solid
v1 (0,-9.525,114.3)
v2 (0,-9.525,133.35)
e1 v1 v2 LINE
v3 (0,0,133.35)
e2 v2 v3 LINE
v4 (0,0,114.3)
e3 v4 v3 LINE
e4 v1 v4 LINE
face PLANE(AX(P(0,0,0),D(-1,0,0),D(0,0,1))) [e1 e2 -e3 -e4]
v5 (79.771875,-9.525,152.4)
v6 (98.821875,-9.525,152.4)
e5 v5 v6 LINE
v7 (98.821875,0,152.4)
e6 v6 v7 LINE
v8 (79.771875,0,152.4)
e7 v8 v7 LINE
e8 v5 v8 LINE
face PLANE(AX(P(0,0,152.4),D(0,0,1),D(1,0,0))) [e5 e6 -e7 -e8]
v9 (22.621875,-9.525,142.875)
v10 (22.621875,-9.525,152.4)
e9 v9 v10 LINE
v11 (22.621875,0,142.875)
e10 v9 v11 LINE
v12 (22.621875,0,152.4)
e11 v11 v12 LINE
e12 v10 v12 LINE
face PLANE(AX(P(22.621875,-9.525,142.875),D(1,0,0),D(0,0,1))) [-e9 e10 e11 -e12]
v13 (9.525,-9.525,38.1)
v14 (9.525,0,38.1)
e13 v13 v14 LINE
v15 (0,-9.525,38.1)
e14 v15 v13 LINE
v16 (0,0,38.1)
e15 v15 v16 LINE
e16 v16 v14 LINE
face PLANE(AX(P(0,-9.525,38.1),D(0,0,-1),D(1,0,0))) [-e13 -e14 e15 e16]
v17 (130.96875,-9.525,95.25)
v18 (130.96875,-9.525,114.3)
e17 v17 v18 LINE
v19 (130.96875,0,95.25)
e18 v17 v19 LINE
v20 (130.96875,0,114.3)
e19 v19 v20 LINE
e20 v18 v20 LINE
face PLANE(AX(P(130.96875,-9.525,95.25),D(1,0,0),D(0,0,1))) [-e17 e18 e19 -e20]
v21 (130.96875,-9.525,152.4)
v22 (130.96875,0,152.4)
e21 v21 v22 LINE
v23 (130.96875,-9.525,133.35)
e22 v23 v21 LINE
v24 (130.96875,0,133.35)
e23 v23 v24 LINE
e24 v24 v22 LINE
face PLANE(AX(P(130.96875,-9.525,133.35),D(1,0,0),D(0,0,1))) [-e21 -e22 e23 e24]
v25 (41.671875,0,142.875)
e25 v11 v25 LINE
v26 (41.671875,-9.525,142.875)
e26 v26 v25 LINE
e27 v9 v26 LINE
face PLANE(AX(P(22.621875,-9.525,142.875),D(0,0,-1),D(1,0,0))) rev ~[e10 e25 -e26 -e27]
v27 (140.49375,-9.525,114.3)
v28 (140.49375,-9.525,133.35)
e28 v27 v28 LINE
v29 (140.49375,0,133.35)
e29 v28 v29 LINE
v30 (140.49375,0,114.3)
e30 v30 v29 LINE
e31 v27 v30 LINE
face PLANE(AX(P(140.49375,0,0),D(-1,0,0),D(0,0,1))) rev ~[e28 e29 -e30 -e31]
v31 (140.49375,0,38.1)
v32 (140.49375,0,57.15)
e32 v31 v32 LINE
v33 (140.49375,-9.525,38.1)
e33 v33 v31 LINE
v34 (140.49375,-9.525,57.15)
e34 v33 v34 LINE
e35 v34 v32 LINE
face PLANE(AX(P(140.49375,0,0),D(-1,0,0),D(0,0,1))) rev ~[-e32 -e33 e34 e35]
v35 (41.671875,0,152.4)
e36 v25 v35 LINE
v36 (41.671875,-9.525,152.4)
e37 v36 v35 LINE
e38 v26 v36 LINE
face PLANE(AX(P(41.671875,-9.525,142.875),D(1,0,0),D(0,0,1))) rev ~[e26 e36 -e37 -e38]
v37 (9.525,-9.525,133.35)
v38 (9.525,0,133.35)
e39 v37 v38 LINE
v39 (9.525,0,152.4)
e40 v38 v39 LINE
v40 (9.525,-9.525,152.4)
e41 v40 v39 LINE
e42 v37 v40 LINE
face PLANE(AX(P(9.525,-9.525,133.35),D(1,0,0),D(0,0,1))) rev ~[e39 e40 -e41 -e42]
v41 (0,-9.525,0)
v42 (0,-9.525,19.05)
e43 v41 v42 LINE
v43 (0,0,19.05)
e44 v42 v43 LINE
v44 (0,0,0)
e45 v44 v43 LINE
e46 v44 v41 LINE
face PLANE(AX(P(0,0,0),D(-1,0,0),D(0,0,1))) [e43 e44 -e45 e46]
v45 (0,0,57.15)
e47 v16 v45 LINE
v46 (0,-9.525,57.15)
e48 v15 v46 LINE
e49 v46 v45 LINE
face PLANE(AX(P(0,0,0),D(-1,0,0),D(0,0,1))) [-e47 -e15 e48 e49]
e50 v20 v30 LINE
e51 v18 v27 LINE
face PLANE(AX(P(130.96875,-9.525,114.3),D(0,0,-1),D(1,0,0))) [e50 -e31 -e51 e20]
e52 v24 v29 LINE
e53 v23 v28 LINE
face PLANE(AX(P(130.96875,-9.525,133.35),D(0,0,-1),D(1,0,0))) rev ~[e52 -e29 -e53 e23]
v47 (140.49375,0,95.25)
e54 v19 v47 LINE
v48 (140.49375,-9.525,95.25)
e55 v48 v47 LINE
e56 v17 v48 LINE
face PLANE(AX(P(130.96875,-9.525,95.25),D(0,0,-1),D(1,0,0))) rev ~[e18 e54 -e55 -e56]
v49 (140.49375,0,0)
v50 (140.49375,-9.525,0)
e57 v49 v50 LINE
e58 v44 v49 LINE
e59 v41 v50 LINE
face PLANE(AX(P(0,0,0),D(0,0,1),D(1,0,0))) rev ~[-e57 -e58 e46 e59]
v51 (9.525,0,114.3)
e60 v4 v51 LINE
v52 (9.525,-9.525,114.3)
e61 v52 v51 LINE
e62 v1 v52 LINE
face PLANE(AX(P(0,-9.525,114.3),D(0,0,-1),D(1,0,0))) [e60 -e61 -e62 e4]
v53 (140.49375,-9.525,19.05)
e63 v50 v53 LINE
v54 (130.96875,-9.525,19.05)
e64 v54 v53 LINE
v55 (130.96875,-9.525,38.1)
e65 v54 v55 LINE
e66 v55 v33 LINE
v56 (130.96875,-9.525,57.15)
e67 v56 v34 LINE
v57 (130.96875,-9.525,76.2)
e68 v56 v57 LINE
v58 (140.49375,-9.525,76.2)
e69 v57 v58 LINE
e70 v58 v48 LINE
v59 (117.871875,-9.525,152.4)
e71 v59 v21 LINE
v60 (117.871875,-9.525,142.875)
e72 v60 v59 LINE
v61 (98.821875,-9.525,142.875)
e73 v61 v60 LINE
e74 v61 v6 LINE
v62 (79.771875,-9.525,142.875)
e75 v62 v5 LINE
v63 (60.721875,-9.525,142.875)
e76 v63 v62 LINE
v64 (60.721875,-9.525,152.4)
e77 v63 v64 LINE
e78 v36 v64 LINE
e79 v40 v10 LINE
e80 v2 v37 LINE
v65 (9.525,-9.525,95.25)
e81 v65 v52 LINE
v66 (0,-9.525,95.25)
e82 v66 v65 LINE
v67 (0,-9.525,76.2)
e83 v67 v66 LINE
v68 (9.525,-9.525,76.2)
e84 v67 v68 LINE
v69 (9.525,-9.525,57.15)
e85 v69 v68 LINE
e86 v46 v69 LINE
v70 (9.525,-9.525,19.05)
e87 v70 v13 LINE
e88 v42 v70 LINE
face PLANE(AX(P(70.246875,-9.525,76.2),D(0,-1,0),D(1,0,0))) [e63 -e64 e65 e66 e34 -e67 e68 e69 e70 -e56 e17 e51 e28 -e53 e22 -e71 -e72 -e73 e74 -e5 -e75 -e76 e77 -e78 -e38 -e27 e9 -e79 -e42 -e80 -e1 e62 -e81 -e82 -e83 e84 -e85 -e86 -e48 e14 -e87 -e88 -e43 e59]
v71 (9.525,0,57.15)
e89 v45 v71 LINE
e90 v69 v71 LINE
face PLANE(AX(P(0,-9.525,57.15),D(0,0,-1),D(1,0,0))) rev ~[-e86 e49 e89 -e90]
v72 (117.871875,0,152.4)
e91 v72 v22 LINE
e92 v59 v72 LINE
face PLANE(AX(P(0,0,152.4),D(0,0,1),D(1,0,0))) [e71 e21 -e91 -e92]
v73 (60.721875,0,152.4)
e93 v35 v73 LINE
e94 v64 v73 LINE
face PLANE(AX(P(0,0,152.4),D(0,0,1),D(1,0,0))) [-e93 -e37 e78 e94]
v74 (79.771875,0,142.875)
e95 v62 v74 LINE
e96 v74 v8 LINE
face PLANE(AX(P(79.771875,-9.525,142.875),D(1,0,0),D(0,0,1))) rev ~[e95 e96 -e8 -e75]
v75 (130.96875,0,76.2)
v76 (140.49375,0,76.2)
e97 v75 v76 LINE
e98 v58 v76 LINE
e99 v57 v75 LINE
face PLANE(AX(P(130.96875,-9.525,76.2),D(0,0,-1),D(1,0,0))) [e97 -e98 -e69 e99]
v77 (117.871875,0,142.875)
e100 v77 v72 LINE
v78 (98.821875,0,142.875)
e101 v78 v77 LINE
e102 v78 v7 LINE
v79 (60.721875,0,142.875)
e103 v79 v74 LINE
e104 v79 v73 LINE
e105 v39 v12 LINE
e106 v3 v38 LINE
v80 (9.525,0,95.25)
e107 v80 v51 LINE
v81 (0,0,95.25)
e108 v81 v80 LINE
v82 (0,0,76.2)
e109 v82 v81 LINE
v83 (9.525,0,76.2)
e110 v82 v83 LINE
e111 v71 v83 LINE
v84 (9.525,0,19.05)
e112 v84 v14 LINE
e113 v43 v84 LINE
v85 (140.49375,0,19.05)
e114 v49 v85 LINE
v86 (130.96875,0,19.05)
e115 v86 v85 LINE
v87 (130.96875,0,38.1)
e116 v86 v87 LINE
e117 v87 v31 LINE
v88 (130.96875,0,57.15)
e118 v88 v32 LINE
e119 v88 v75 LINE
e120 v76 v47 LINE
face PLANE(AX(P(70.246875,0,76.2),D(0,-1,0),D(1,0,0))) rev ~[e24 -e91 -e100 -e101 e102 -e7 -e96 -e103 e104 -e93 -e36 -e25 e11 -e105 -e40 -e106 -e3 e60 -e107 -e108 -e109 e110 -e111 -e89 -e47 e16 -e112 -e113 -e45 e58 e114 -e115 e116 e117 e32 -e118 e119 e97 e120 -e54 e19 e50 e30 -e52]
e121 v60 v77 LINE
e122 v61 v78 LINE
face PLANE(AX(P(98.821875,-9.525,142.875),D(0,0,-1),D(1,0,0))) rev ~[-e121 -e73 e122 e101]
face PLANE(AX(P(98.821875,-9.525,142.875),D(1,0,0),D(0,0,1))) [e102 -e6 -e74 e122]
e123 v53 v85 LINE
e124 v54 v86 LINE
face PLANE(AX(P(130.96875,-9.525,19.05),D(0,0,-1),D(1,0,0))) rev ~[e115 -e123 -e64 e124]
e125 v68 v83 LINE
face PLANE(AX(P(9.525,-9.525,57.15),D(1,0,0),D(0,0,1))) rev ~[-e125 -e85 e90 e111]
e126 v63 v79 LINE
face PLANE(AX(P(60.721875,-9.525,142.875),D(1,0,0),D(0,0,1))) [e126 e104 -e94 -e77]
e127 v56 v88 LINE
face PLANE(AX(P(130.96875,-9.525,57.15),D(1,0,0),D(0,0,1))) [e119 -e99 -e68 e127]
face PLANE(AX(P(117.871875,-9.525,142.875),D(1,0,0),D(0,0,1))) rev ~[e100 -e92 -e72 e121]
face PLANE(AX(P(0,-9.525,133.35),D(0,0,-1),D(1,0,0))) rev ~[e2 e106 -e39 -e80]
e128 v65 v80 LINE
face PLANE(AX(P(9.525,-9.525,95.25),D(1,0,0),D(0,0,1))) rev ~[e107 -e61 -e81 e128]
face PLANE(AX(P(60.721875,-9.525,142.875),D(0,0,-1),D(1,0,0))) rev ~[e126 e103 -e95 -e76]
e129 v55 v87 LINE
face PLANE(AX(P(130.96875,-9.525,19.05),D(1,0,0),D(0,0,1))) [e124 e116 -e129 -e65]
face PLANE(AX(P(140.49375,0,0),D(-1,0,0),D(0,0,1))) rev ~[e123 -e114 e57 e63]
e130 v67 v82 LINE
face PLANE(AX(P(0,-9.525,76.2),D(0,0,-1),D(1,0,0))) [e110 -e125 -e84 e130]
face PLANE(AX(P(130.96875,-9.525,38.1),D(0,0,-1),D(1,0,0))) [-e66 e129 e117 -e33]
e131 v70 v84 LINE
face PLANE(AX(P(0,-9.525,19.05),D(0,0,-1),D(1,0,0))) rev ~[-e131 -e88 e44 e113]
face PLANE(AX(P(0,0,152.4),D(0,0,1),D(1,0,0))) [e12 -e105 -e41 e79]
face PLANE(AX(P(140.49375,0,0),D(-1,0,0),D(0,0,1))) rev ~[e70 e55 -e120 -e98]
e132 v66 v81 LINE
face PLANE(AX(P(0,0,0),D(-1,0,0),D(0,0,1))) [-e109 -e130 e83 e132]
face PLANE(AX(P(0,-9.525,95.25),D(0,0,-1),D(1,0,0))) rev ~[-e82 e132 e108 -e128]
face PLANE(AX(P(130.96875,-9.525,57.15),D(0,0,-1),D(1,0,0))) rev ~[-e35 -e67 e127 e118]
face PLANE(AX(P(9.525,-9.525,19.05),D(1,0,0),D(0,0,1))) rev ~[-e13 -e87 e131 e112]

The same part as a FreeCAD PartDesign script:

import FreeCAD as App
import Part
import Sketcher
Q = App.Units.Quantity

doc = App.newDocument("Part")
body = doc.addObject("PartDesign::Body", "Body")

# Sketch on XZ plane
sketch1 = body.newObject("Sketcher::SketchObject", "Sketch")
sketch1.AttachmentSupport = (doc.getObject("XZ_Plane"), [""])
sketch1.MapMode = "FlatFace"
sketch1.addGeometry(Part.LineSegment(App.Vector(0, 152, 0), App.Vector(0, 0, 0)), False)
sketch1.addGeometry(Part.LineSegment(App.Vector(0, 0, 0), App.Vector(140, 0, 0)), False)
sketch1.addGeometry(Part.LineSegment(App.Vector(140, 0, 0), App.Vector(140, 152, 0)), False)
sketch1.addGeometry(Part.LineSegment(App.Vector(140, 152, 0), App.Vector(0, 152, 0)), False)
sketch1.addConstraint(Sketcher.Constraint("Coincident", 0, 2, 1, 1))
sketch1.addConstraint(Sketcher.Constraint("Coincident", 1, 2, 2, 1))
sketch1.addConstraint(Sketcher.Constraint("Coincident", 2, 2, 3, 1))
sketch1.addConstraint(Sketcher.Constraint("Coincident", 3, 2, 0, 1))
sketch1.addConstraint(Sketcher.Constraint("Vertical", 0))
sketch1.addConstraint(Sketcher.Constraint("Horizontal", 1))
sketch1.addConstraint(Sketcher.Constraint("Vertical", 2))
sketch1.addConstraint(Sketcher.Constraint("Horizontal", 3))
sketch1.addConstraint(Sketcher.Constraint("Coincident", 0, 2, -1, 1))
sketch1.addConstraint(Sketcher.Constraint("DistanceY", 0, 2, 0, 1, Q("6 in")))
sketch1.addConstraint(Sketcher.Constraint("DistanceX", 1, 1, 1, 2, Q("5.53125 in")))
pad1 = body.newObject("PartDesign::Pad", "Pad")
pad1.Profile = sketch1
pad1.Length = Q("0.375 in")

# Sketch on XZ plane
sketch2 = body.newObject("Sketcher::SketchObject", "Sketch001")
sketch2.AttachmentSupport = (doc.getObject("XZ_Plane"), [""])
sketch2.MapMode = "FlatFace"
sketch2.AttachmentOffset = App.Placement(App.Vector(0, 0, 0.375 * 25.4), App.Rotation())
sketch2.addGeometry(Part.LineSegment(App.Vector(0, 152, 0), App.Vector(0, 133, 0)), False)
sketch2.addGeometry(Part.LineSegment(App.Vector(0, 133, 0), App.Vector(10, 133, 0)), False)
sketch2.addGeometry(Part.LineSegment(App.Vector(10, 133, 0), App.Vector(10, 152, 0)), False)
sketch2.addGeometry(Part.LineSegment(App.Vector(10, 152, 0), App.Vector(0, 152, 0)), False)
sketch2.addGeometry(Part.LineSegment(App.Vector(0, 114, 0), App.Vector(0, 95, 0)), False)
sketch2.addGeometry(Part.LineSegment(App.Vector(0, 95, 0), App.Vector(10, 95, 0)), False)
sketch2.addGeometry(Part.LineSegment(App.Vector(10, 95, 0), App.Vector(10, 114, 0)), False)
sketch2.addGeometry(Part.LineSegment(App.Vector(10, 114, 0), App.Vector(0, 114, 0)), False)
sketch2.addGeometry(Part.LineSegment(App.Vector(0, 76, 0), App.Vector(0, 57, 0)), False)
sketch2.addGeometry(Part.LineSegment(App.Vector(0, 57, 0), App.Vector(10, 57, 0)), False)
sketch2.addGeometry(Part.LineSegment(App.Vector(10, 57, 0), App.Vector(10, 76, 0)), False)
sketch2.addGeometry(Part.LineSegment(App.Vector(10, 76, 0), App.Vector(0, 76, 0)), False)
sketch2.addGeometry(Part.LineSegment(App.Vector(0, 38, 0), App.Vector(0, 19, 0)), False)
sketch2.addGeometry(Part.LineSegment(App.Vector(0, 19, 0), App.Vector(10, 19, 0)), False)
sketch2.addGeometry(Part.LineSegment(App.Vector(10, 19, 0), App.Vector(10, 38, 0)), False)
sketch2.addGeometry(Part.LineSegment(App.Vector(10, 38, 0), App.Vector(0, 38, 0)), False)
sketch2.addGeometry(Part.LineSegment(App.Vector(23, 152, 0), App.Vector(23, 143, 0)), False)
sketch2.addGeometry(Part.LineSegment(App.Vector(23, 143, 0), App.Vector(42, 143, 0)), False)
sketch2.addGeometry(Part.LineSegment(App.Vector(42, 143, 0), App.Vector(42, 152, 0)), False)
sketch2.addGeometry(Part.LineSegment(App.Vector(42, 152, 0), App.Vector(23, 152, 0)), False)
sketch2.addGeometry(Part.LineSegment(App.Vector(61, 152, 0), App.Vector(61, 143, 0)), False)
sketch2.addGeometry(Part.LineSegment(App.Vector(61, 143, 0), App.Vector(80, 143, 0)), False)
sketch2.addGeometry(Part.LineSegment(App.Vector(80, 143, 0), App.Vector(80, 152, 0)), False)
sketch2.addGeometry(Part.LineSegment(App.Vector(80, 152, 0), App.Vector(61, 152, 0)), False)
sketch2.addGeometry(Part.LineSegment(App.Vector(99, 152, 0), App.Vector(99, 143, 0)), False)
sketch2.addGeometry(Part.LineSegment(App.Vector(99, 143, 0), App.Vector(118, 143, 0)), False)
sketch2.addGeometry(Part.LineSegment(App.Vector(118, 143, 0), App.Vector(118, 152, 0)), False)
sketch2.addGeometry(Part.LineSegment(App.Vector(118, 152, 0), App.Vector(99, 152, 0)), False)
sketch2.addGeometry(Part.LineSegment(App.Vector(131, 152, 0), App.Vector(131, 133, 0)), False)
sketch2.addGeometry(Part.LineSegment(App.Vector(131, 133, 0), App.Vector(140, 133, 0)), False)
sketch2.addGeometry(Part.LineSegment(App.Vector(140, 133, 0), App.Vector(140, 152, 0)), False)
sketch2.addGeometry(Part.LineSegment(App.Vector(140, 152, 0), App.Vector(131, 152, 0)), False)
sketch2.addGeometry(Part.LineSegment(App.Vector(131, 114, 0), App.Vector(131, 95, 0)), False)
sketch2.addGeometry(Part.LineSegment(App.Vector(131, 95, 0), App.Vector(140, 95, 0)), False)
sketch2.addGeometry(Part.LineSegment(App.Vector(140, 95, 0), App.Vector(140, 114, 0)), False)
sketch2.addGeometry(Part.LineSegment(App.Vector(140, 114, 0), App.Vector(131, 114, 0)), False)
sketch2.addGeometry(Part.LineSegment(App.Vector(131, 76, 0), App.Vector(131, 57, 0)), False)
sketch2.addGeometry(Part.LineSegment(App.Vector(131, 57, 0), App.Vector(140, 57, 0)), False)
sketch2.addGeometry(Part.LineSegment(App.Vector(140, 57, 0), App.Vector(140, 76, 0)), False)
sketch2.addGeometry(Part.LineSegment(App.Vector(140, 76, 0), App.Vector(131, 76, 0)), False)
sketch2.addGeometry(Part.LineSegment(App.Vector(131, 38, 0), App.Vector(131, 19, 0)), False)
sketch2.addGeometry(Part.LineSegment(App.Vector(131, 19, 0), App.Vector(140, 19, 0)), False)
sketch2.addGeometry(Part.LineSegment(App.Vector(140, 19, 0), App.Vector(140, 38, 0)), False)
sketch2.addGeometry(Part.LineSegment(App.Vector(140, 38, 0), App.Vector(131, 38, 0)), False)
sketch2.addConstraint(Sketcher.Constraint("Coincident", 0, 2, 1, 1))
sketch2.addConstraint(Sketcher.Constraint("Coincident", 1, 2, 2, 1))
sketch2.addConstraint(Sketcher.Constraint("Coincident", 2, 2, 3, 1))
sketch2.addConstraint(Sketcher.Constraint("Coincident", 3, 2, 0, 1))
sketch2.addConstraint(Sketcher.Constraint("Coincident", 4, 2, 5, 1))
sketch2.addConstraint(Sketcher.Constraint("Coincident", 5, 2, 6, 1))
sketch2.addConstraint(Sketcher.Constraint("Coincident", 6, 2, 7, 1))
sketch2.addConstraint(Sketcher.Constraint("Coincident", 7, 2, 4, 1))
sketch2.addConstraint(Sketcher.Constraint("Coincident", 8, 2, 9, 1))
sketch2.addConstraint(Sketcher.Constraint("Coincident", 9, 2, 10, 1))
sketch2.addConstraint(Sketcher.Constraint("Coincident", 10, 2, 11, 1))
sketch2.addConstraint(Sketcher.Constraint("Coincident", 11, 2, 8, 1))
sketch2.addConstraint(Sketcher.Constraint("Coincident", 12, 2, 13, 1))
sketch2.addConstraint(Sketcher.Constraint("Coincident", 13, 2, 14, 1))
sketch2.addConstraint(Sketcher.Constraint("Coincident", 14, 2, 15, 1))
sketch2.addConstraint(Sketcher.Constraint("Coincident", 15, 2, 12, 1))
sketch2.addConstraint(Sketcher.Constraint("Coincident", 16, 2, 17, 1))
sketch2.addConstraint(Sketcher.Constraint("Coincident", 17, 2, 18, 1))
sketch2.addConstraint(Sketcher.Constraint("Coincident", 18, 2, 19, 1))
sketch2.addConstraint(Sketcher.Constraint("Coincident", 19, 2, 16, 1))
sketch2.addConstraint(Sketcher.Constraint("Coincident", 20, 2, 21, 1))
sketch2.addConstraint(Sketcher.Constraint("Coincident", 21, 2, 22, 1))
sketch2.addConstraint(Sketcher.Constraint("Coincident", 22, 2, 23, 1))
sketch2.addConstraint(Sketcher.Constraint("Coincident", 23, 2, 20, 1))
sketch2.addConstraint(Sketcher.Constraint("Coincident", 24, 2, 25, 1))
sketch2.addConstraint(Sketcher.Constraint("Coincident", 25, 2, 26, 1))
sketch2.addConstraint(Sketcher.Constraint("Coincident", 26, 2, 27, 1))
sketch2.addConstraint(Sketcher.Constraint("Coincident", 27, 2, 24, 1))
sketch2.addConstraint(Sketcher.Constraint("Coincident", 28, 2, 29, 1))
sketch2.addConstraint(Sketcher.Constraint("Coincident", 29, 2, 30, 1))
sketch2.addConstraint(Sketcher.Constraint("Coincident", 30, 2, 31, 1))
sketch2.addConstraint(Sketcher.Constraint("Coincident", 31, 2, 28, 1))
sketch2.addConstraint(Sketcher.Constraint("Coincident", 32, 2, 33, 1))
sketch2.addConstraint(Sketcher.Constraint("Coincident", 33, 2, 34, 1))
sketch2.addConstraint(Sketcher.Constraint("Coincident", 34, 2, 35, 1))
sketch2.addConstraint(Sketcher.Constraint("Coincident", 35, 2, 32, 1))
sketch2.addConstraint(Sketcher.Constraint("Coincident", 36, 2, 37, 1))
sketch2.addConstraint(Sketcher.Constraint("Coincident", 37, 2, 38, 1))
sketch2.addConstraint(Sketcher.Constraint("Coincident", 38, 2, 39, 1))
sketch2.addConstraint(Sketcher.Constraint("Coincident", 39, 2, 36, 1))
sketch2.addConstraint(Sketcher.Constraint("Coincident", 40, 2, 41, 1))
sketch2.addConstraint(Sketcher.Constraint("Coincident", 41, 2, 42, 1))
sketch2.addConstraint(Sketcher.Constraint("Coincident", 42, 2, 43, 1))
sketch2.addConstraint(Sketcher.Constraint("Coincident", 43, 2, 40, 1))
sketch2.addConstraint(Sketcher.Constraint("Vertical", 0))
sketch2.addConstraint(Sketcher.Constraint("Horizontal", 1))
sketch2.addConstraint(Sketcher.Constraint("Vertical", 2))
sketch2.addConstraint(Sketcher.Constraint("Horizontal", 3))
sketch2.addConstraint(Sketcher.Constraint("Vertical", 4))
sketch2.addConstraint(Sketcher.Constraint("Horizontal", 5))
sketch2.addConstraint(Sketcher.Constraint("Vertical", 6))
sketch2.addConstraint(Sketcher.Constraint("Horizontal", 7))
sketch2.addConstraint(Sketcher.Constraint("Vertical", 8))
sketch2.addConstraint(Sketcher.Constraint("Horizontal", 9))
sketch2.addConstraint(Sketcher.Constraint("Vertical", 10))
sketch2.addConstraint(Sketcher.Constraint("Horizontal", 11))
sketch2.addConstraint(Sketcher.Constraint("Vertical", 12))
sketch2.addConstraint(Sketcher.Constraint("Horizontal", 13))
sketch2.addConstraint(Sketcher.Constraint("Vertical", 14))
sketch2.addConstraint(Sketcher.Constraint("Horizontal", 15))
sketch2.addConstraint(Sketcher.Constraint("Vertical", 16))
sketch2.addConstraint(Sketcher.Constraint("Horizontal", 17))
sketch2.addConstraint(Sketcher.Constraint("Vertical", 18))
sketch2.addConstraint(Sketcher.Constraint("Horizontal", 19))
sketch2.addConstraint(Sketcher.Constraint("Vertical", 20))
sketch2.addConstraint(Sketcher.Constraint("Horizontal", 21))
sketch2.addConstraint(Sketcher.Constraint("Vertical", 22))
sketch2.addConstraint(Sketcher.Constraint("Horizontal", 23))
sketch2.addConstraint(Sketcher.Constraint("Vertical", 24))
sketch2.addConstraint(Sketcher.Constraint("Horizontal", 25))
sketch2.addConstraint(Sketcher.Constraint("Vertical", 26))
sketch2.addConstraint(Sketcher.Constraint("Horizontal", 27))
sketch2.addConstraint(Sketcher.Constraint("Vertical", 28))
sketch2.addConstraint(Sketcher.Constraint("Horizontal", 29))
sketch2.addConstraint(Sketcher.Constraint("Vertical", 30))
sketch2.addConstraint(Sketcher.Constraint("Horizontal", 31))
sketch2.addConstraint(Sketcher.Constraint("Vertical", 32))
sketch2.addConstraint(Sketcher.Constraint("Horizontal", 33))
sketch2.addConstraint(Sketcher.Constraint("Vertical", 34))
sketch2.addConstraint(Sketcher.Constraint("Horizontal", 35))
sketch2.addConstraint(Sketcher.Constraint("Vertical", 36))
sketch2.addConstraint(Sketcher.Constraint("Horizontal", 37))
sketch2.addConstraint(Sketcher.Constraint("Vertical", 38))
sketch2.addConstraint(Sketcher.Constraint("Horizontal", 39))
sketch2.addConstraint(Sketcher.Constraint("Vertical", 40))
sketch2.addConstraint(Sketcher.Constraint("Horizontal", 41))
sketch2.addConstraint(Sketcher.Constraint("Vertical", 42))
sketch2.addConstraint(Sketcher.Constraint("Horizontal", 43))
sketch2.addConstraint(Sketcher.Constraint("PointOnObject", 0, 2, -2))
sketch2.addConstraint(Sketcher.Constraint("PointOnObject", 4, 2, -2))
sketch2.addConstraint(Sketcher.Constraint("PointOnObject", 8, 2, -2))
sketch2.addConstraint(Sketcher.Constraint("PointOnObject", 12, 2, -2))
sketch2.addConstraint(Sketcher.Constraint("Horizontal", 3, 2, 18, 2))
sketch2.addConstraint(Sketcher.Constraint("Horizontal", 17, 2, 20, 2))
sketch2.addConstraint(Sketcher.Constraint("Horizontal", 19, 2, 22, 2))
sketch2.addConstraint(Sketcher.Constraint("Horizontal", 21, 2, 24, 2))
sketch2.addConstraint(Sketcher.Constraint("Horizontal", 23, 2, 26, 2))
sketch2.addConstraint(Sketcher.Constraint("Horizontal", 1, 2, 28, 2))
sketch2.addConstraint(Sketcher.Constraint("Horizontal", 27, 2, 30, 2))
sketch2.addConstraint(Sketcher.Constraint("Horizontal", 5, 2, 32, 2))
sketch2.addConstraint(Sketcher.Constraint("Horizontal", 7, 2, 34, 2))
sketch2.addConstraint(Sketcher.Constraint("Horizontal", 9, 2, 36, 2))
sketch2.addConstraint(Sketcher.Constraint("Horizontal", 11, 2, 38, 2))
sketch2.addConstraint(Sketcher.Constraint("Horizontal", 13, 2, 40, 2))
sketch2.addConstraint(Sketcher.Constraint("Horizontal", 15, 2, 42, 2))
sketch2.addConstraint(Sketcher.Constraint("Vertical", 2, 2, 5, 2))
sketch2.addConstraint(Sketcher.Constraint("Vertical", 6, 2, 9, 2))
sketch2.addConstraint(Sketcher.Constraint("Vertical", 10, 2, 13, 2))
sketch2.addConstraint(Sketcher.Constraint("Vertical", 31, 2, 32, 2))
sketch2.addConstraint(Sketcher.Constraint("Vertical", 30, 2, 33, 2))
sketch2.addConstraint(Sketcher.Constraint("Vertical", 35, 2, 36, 2))
sketch2.addConstraint(Sketcher.Constraint("Vertical", 34, 2, 37, 2))
sketch2.addConstraint(Sketcher.Constraint("Vertical", 39, 2, 40, 2))
sketch2.addConstraint(Sketcher.Constraint("Vertical", 38, 2, 41, 2))
sketch2.addConstraint(Sketcher.Constraint("Equal", 19, 21))
sketch2.addConstraint(Sketcher.Constraint("Equal", 23, 25))
sketch2.addConstraint(Sketcher.Constraint("Equal", 15, 29))
sketch2.addConstraint(Sketcher.Constraint("Equal", 27, 0))
sketch2.addConstraint(Sketcher.Constraint("Equal", 2, 4))
sketch2.addConstraint(Sketcher.Constraint("Equal", 6, 8))
sketch2.addConstraint(Sketcher.Constraint("Equal", 10, 12))
sketch2.addConstraint(Sketcher.Constraint("Equal", 43, 16))
sketch2.addConstraint(Sketcher.Constraint("DistanceY", -1, 1, 2, 2, Q("6 in")))
sketch2.addConstraint(Sketcher.Constraint("DistanceY", -1, 1, 10, 2, Q("3 in")))
sketch2.addConstraint(Sketcher.Constraint("DistanceY", 12, 2, 4, 2, Q("3 in")))
sketch2.addConstraint(Sketcher.Constraint("DistanceX", 17, 1, 17, 2, Q("0.75 in")))
sketch2.addConstraint(Sketcher.Constraint("DistanceY", -1, 1, 6, 2, Q("4.5 in")))
sketch2.addConstraint(Sketcher.Constraint("DistanceX", 16, 2, 20, 2, Q("1.5 in")))
sketch2.addConstraint(Sketcher.Constraint("DistanceX", 20, 2, 24, 2, Q("1.5 in")))
sketch2.addConstraint(Sketcher.Constraint("DistanceX", 1, 1, 1, 2, Q("0.375 in")))
sketch2.addConstraint(Sketcher.Constraint("DistanceX", -1, 1, 16, 2, Q("0.890625 in")))
sketch2.addConstraint(Sketcher.Constraint("DistanceX", -1, 1, 28, 2, Q("5.15625 in")))
pocket1 = body.newObject("PartDesign::Pocket", "Pocket")
pocket1.Profile = sketch2
pocket1.Length = Q("1 in")

doc.recompute()
